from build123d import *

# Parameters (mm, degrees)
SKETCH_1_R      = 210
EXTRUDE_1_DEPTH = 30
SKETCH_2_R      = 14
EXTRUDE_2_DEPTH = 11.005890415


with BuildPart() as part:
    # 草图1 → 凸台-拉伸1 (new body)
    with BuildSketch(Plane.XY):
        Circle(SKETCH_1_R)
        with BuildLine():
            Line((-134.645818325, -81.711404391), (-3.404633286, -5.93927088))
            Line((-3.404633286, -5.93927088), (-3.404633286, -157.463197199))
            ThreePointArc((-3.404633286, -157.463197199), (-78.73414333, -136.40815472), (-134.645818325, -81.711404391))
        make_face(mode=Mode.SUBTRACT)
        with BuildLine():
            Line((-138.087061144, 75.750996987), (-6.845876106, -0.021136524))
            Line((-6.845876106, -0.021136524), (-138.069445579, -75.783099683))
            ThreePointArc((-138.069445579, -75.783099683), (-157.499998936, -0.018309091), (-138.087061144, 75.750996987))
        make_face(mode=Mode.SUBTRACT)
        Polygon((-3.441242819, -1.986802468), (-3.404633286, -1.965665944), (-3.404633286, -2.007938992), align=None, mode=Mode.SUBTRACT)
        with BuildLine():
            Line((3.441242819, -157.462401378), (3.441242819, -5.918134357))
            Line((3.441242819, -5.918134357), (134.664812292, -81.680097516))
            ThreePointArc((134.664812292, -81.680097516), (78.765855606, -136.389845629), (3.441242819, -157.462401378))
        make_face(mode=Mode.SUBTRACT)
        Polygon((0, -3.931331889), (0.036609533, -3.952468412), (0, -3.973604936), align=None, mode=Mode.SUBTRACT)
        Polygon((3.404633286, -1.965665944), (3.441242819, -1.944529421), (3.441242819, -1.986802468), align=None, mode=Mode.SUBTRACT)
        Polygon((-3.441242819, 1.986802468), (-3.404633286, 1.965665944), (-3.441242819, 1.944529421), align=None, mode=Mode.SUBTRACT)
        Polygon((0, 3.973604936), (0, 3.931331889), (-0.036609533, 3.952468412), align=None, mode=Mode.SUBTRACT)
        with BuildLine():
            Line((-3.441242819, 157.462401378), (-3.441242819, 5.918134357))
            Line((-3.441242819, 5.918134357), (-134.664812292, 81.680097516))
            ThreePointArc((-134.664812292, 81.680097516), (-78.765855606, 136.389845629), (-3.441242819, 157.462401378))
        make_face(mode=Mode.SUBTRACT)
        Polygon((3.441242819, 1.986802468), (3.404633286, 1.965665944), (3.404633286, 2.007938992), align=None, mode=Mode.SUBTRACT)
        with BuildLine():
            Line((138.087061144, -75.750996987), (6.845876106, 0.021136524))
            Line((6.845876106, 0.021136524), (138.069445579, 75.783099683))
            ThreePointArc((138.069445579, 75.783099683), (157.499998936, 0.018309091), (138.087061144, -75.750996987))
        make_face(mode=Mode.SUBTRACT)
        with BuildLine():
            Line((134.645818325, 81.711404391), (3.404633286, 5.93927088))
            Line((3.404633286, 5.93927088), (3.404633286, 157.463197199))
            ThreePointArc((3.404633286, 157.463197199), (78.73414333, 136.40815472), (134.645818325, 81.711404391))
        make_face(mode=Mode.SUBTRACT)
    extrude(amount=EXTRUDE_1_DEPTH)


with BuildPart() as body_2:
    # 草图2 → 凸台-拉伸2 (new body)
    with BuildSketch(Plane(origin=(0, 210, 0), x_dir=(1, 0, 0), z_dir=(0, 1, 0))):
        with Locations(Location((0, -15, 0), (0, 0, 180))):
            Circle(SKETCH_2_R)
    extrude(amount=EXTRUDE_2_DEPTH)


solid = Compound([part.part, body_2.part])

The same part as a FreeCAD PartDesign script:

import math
import FreeCAD as App
import Part
import Sketcher
from FreeCAD import Vector
Q = App.Units.Quantity

doc = App.newDocument("Part")
params = doc.addObject("Spreadsheet::Sheet", "Params")
for row, (alias, value) in enumerate([
    ("sketch1_diameter", "420 mm"),
    ("sketch1_radius", "157.5 mm"),
    ("pad1_length", "30 mm"),
    ("sketch2_diameter", "28 mm"),
    ("pad2_length", "11.00589 mm"),
], start=1):
    params.set(f"A{row}", alias)
    params.set(f"B{row}", "=" + value)
    params.setAlias(f"B{row}", alias)

body = doc.addObject("PartDesign::Body", "Body")

sketch1 = body.newObject("Sketcher::SketchObject", "Sketch")
sketch1.AttachmentSupport = (doc.getObject("XY_Plane"), [""])
sketch1.MapMode = "FlatFace"
sketch1.addGeometry([
    Part.Circle(Vector(0, 0, 0), Vector(0, 0, 1), 210),
    Part.ArcOfCircle(Part.Circle(Vector(0, 0, 0), Vector(0, 0, 1), 157.5), math.radians(-148.748036), math.radians(-91.238643)),
    Part.LineSegment(Vector(-134.645818, -81.711404, 0), Vector(-3.404633, -5.939271, 0)),
    Part.LineSegment(Vector(-3.404633, -5.939271, 0), Vector(-3.404633, -157.463197, 0)),
    Part.ArcOfCircle(Part.Circle(Vector(0, 0, 0), Vector(0, 0, 1), 157.5), math.radians(151.251964), math.radians(208.761357)),
    Part.LineSegment(Vector(-138.087061, 75.750997, 0), Vector(-6.845876, -0.021137, 0)),
    Part.LineSegment(Vector(-6.845876, -0.021137, 0), Vector(-138.069446, -75.7831, 0)),
    Part.LineSegment(Vector(-3.404633, -2.007939, 0), Vector(-3.441243, -1.986802, 0)),
    Part.LineSegment(Vector(-3.441243, -1.986802, 0), Vector(-3.404633, -1.965666, 0)),
    Part.LineSegment(Vector(-3.404633, -1.965666, 0), Vector(-3.404633, -2.007939, 0)),
    Part.ArcOfCircle(Part.Circle(Vector(0, 0, 0), Vector(0, 0, 1), 157.5), math.radians(-88.748036), math.radians(-31.238643)),
    Part.LineSegment(Vector(3.441243, -157.462401, 0), Vector(3.441243, -5.918134, 0)),
    Part.LineSegment(Vector(3.441243, -5.918134, 0), Vector(134.664812, -81.680098, 0)),
    Part.LineSegment(Vector(0, -3.973605, 0), Vector(0, -3.931332, 0)),
    Part.LineSegment(Vector(0, -3.931332, 0), Vector(0.03661, -3.952468, 0)),
    Part.LineSegment(Vector(0.03661, -3.952468, 0), Vector(0, -3.973605, 0)),
    Part.LineSegment(Vector(3.441243, -1.986802, 0), Vector(3.404633, -1.965666, 0)),
    Part.LineSegment(Vector(3.404633, -1.965666, 0), Vector(3.441243, -1.944529, 0)),
    Part.LineSegment(Vector(3.441243, -1.944529, 0), Vector(3.441243, -1.986802, 0)),
    Part.LineSegment(Vector(-3.441243, 1.944529, 0), Vector(-3.441243, 1.986802, 0)),
    Part.LineSegment(Vector(-3.441243, 1.986802, 0), Vector(-3.404633, 1.965666, 0)),
    Part.LineSegment(Vector(-3.404633, 1.965666, 0), Vector(-3.441243, 1.944529, 0)),
    Part.LineSegment(Vector(-0.03661, 3.952468, 0), Vector(0, 3.973605, 0)),
    Part.LineSegment(Vector(0, 3.973605, 0), Vector(0, 3.931332, 0)),
    Part.LineSegment(Vector(0, 3.931332, 0), Vector(-0.03661, 3.952468, 0)),
    Part.ArcOfCircle(Part.Circle(Vector(0, 0, 0), Vector(0, 0, 1), 157.5), math.radians(91.251964), math.radians(148.761357)),
    Part.LineSegment(Vector(-3.441243, 157.462401, 0), Vector(-3.441243, 5.918134, 0)),
    Part.LineSegment(Vector(-3.441243, 5.918134, 0), Vector(-134.664812, 81.680098, 0)),
    Part.LineSegment(Vector(3.404633, 2.007939, 0), Vector(3.441243, 1.986802, 0)),
    Part.LineSegment(Vector(3.441243, 1.986802, 0), Vector(3.404633, 1.965666, 0)),
    Part.LineSegment(Vector(3.404633, 1.965666, 0), Vector(3.404633, 2.007939, 0)),
    Part.ArcOfCircle(Part.Circle(Vector(0, 0, 0), Vector(0, 0, 1), 157.5), math.radians(-28.748036), math.radians(28.761357)),
    Part.LineSegment(Vector(138.087061, -75.750997, 0), Vector(6.845876, 0.021137, 0)),
    Part.LineSegment(Vector(6.845876, 0.021137, 0), Vector(138.069446, 75.7831, 0)),
    Part.ArcOfCircle(Part.Circle(Vector(0, 0, 0), Vector(0, 0, 1), 157.5), math.radians(31.251964), math.radians(88.761357)),
    Part.LineSegment(Vector(134.645818, 81.711404, 0), Vector(3.404633, 5.939271, 0)),
    Part.LineSegment(Vector(3.404633, 5.939271, 0), Vector(3.404633, 157.463197, 0)),
], False)
sketch1.addConstraint([
    Sketcher.Constraint("Coincident", 1, 1, 2, 1),
    Sketcher.Constraint("Coincident", 2, 2, 3, 1),
    Sketcher.Constraint("Coincident", 3, 2, 1, 2),
    Sketcher.Constraint("Coincident", 4, 1, 5, 1),
    Sketcher.Constraint("Coincident", 5, 2, 6, 1),
    Sketcher.Constraint("Coincident", 6, 2, 4, 2),
    Sketcher.Constraint("Coincident", 7, 2, 8, 1),
    Sketcher.Constraint("Coincident", 8, 2, 9, 1),
    Sketcher.Constraint("Coincident", 9, 2, 7, 1),
    Sketcher.Constraint("Coincident", 10, 1, 11, 1),
    Sketcher.Constraint("Coincident", 11, 2, 12, 1),
    Sketcher.Constraint("Coincident", 12, 2, 10, 2),
    Sketcher.Constraint("Coincident", 13, 2, 14, 1),
    Sketcher.Constraint("Coincident", 14, 2, 15, 1),
    Sketcher.Constraint("Coincident", 15, 2, 13, 1),
    Sketcher.Constraint("Coincident", 16, 2, 17, 1),
    Sketcher.Constraint("Coincident", 17, 2, 18, 1),
    Sketcher.Constraint("Coincident", 18, 2, 16, 1),
    Sketcher.Constraint("Coincident", 19, 2, 20, 1),
    Sketcher.Constraint("Coincident", 20, 2, 21, 1),
    Sketcher.Constraint("Coincident", 21, 2, 19, 1),
    Sketcher.Constraint("Coincident", 22, 2, 23, 1),
    Sketcher.Constraint("Coincident", 23, 2, 24, 1),
    Sketcher.Constraint("Coincident", 24, 2, 22, 1),
    Sketcher.Constraint("Coincident", 25, 1, 26, 1),
    Sketcher.Constraint("Coincident", 26, 2, 27, 1),
    Sketcher.Constraint("Coincident", 27, 2, 25, 2),
    Sketcher.Constraint("Coincident", 28, 2, 29, 1),
    Sketcher.Constraint("Coincident", 29, 2, 30, 1),
    Sketcher.Constraint("Coincident", 30, 2, 28, 1),
    Sketcher.Constraint("Coincident", 31, 1, 32, 1),
    Sketcher.Constraint("Coincident", 32, 2, 33, 1),
    Sketcher.Constraint("Coincident", 33, 2, 31, 2),
    Sketcher.Constraint("Coincident", 34, 1, 35, 1),
    Sketcher.Constraint("Coincident", 35, 2, 36, 1),
    Sketcher.Constraint("Coincident", 36, 2, 34, 2),
    Sketcher.Constraint("Vertical", 3),
    Sketcher.Constraint("Vertical", 9),
    Sketcher.Constraint("Vertical", 11),
    Sketcher.Constraint("Vertical", 13),
    Sketcher.Constraint("Vertical", 18),
    Sketcher.Constraint("Vertical", 19),
    Sketcher.Constraint("Vertical", 23),
    Sketcher.Constraint("Vertical", 26),
    Sketcher.Constraint("Vertical", 30),
    Sketcher.Constraint("Vertical", 36),
    Sketcher.Constraint("Coincident", 0, 3, -1, 1),
    Sketcher.Constraint("Coincident", 1, 3, -1, 1),
    Sketcher.Constraint("Coincident", 4, 3, -1, 1),
    Sketcher.Constraint("Coincident", 10, 3, -1, 1),
    Sketcher.Constraint("Coincident", 25, 3, -1, 1),
    Sketcher.Constraint("Coincident", 31, 3, -1, 1),
    Sketcher.Constraint("Coincident", 34, 3, -1, 1),
    Sketcher.Constraint("Equal", 1, 4),
    Sketcher.Constraint("Equal", 4, 10),
    Sketcher.Constraint("Equal", 10, 25),
    Sketcher.Constraint("Equal", 25, 31),
    Sketcher.Constraint("Equal", 31, 34),
    Sketcher.Constraint("Symmetric", 18, 2, 19, 2, -1, 1),
    Sketcher.Constraint("Symmetric", 16, 2, 20, 2, -1, 1),
    Sketcher.Constraint("Symmetric", 15, 2, 22, 2, -1, 1),
    Sketcher.Constraint("Symmetric", 14, 2, 24, 2, -1, 1),
    Sketcher.Constraint("Symmetric", 11, 2, 26, 2, -1, 1),
    Sketcher.Constraint("Symmetric", 7, 2, 28, 2, -1, 1),
    Sketcher.Constraint("Symmetric", 8, 2, 29, 2, -1, 1),
    Sketcher.Constraint("Symmetric", 5, 2, 32, 2, -1, 1),
    Sketcher.Constraint("Symmetric", 2, 2, 35, 2, -1, 1),
    Sketcher.Constraint("Symmetric", 8, 2, 16, 2, -2),
    Sketcher.Constraint("Symmetric", 7, 2, 18, 2, -2),
    Sketcher.Constraint("Symmetric", 13, 2, 23, 2, -1),
    Sketcher.Constraint("Parallel", 2, 6),
    Sketcher.Constraint("Parallel", 5, 7),
    Sketcher.Constraint("Parallel", 6, 8),
    Sketcher.Constraint("Parallel", 5, 12),
    Sketcher.Constraint("Parallel", 12, 14),
    Sketcher.Constraint("Parallel", 8, 15),
    Sketcher.Constraint("Parallel", 15, 17),
    Sketcher.Constraint("Parallel", 17, 21),
    Sketcher.Constraint("Parallel", 12, 27),
    Sketcher.Constraint("Parallel", 27, 28),
    Sketcher.Constraint("Parallel", 27, 32),
    Sketcher.Constraint("Parallel", 6, 33),
    Sketcher.Constraint("Parallel", 33, 35),
    Sketcher.Constraint("Vertical", 3, 2, 8, 2),
    Sketcher.Constraint("Vertical", 11, 2, 17, 2),
    Sketcher.Constraint("Equal", 9, 13),
    Sketcher.Constraint("Equal", 2, 5),
    Sketcher.Constraint("Equal", 6, 12),
    Sketcher.Constraint("Diameter", 0, Q("420 mm")),
    Sketcher.Constraint("Radius", 1, Q("157.5 mm")),
    Sketcher.Constraint("Angle", 2, Q("30 deg")),
    Sketcher.Constraint("Angle", 5, Q("-30 deg")),
    Sketcher.Constraint("DistanceY", 6, 2, -1, 1, Q("75.7831 mm")),
    Sketcher.Constraint("DistanceY", 10, 1, 7, 2, Q("155.475599 mm")),
    Sketcher.Constraint("DistanceY", 4, 1, 27, 2, Q("5.929101 mm")),
    Sketcher.Constraint("DistanceY", 3, 2, 3, 1, Q("151.523926 mm")),
    Sketcher.Constraint("DistanceY", 9, 2, 9, 1, Q("0.042273 mm")),
    Sketcher.Constraint("DistanceY", 13, 2, -1, 1, Q("3.931332 mm")),
])
sketch1.setExpression("Constraints[88]", "Params.sketch1_diameter")
sketch1.setExpression("Constraints[89]", "Params.sketch1_radius")
pad1 = body.newObject("PartDesign::Pad", "Pad")
pad1.Profile = sketch1
pad1.setExpression("Length", "Params.pad1_length")
body2 = doc.addObject("PartDesign::Body", "Body001")

sketch2 = body2.newObject("Sketcher::SketchObject", "Sketch001")
sketch2.AttachmentSupport = (doc.getObject("XZ_Plane001"), [""])
sketch2.MapMode = "FlatFace"
sketch2.AttachmentOffset = App.Placement(Vector(0, 0, -210), App.Rotation())
sketch2.addGeometry(Part.Circle(Vector(0, 15, 0), Vector(0, 0, 1), 14), False)
sketch2.addConstraint([
    Sketcher.Constraint("PointOnObject", 0, 3, -2),
    Sketcher.Constraint("Diameter", 0, Q("28 mm")),
    Sketcher.Constraint("DistanceY", -1, 1, 0, 3, Q("15 mm")),
])
sketch2.setExpression("Constraints[1]", "Params.sketch2_diameter")
pad2 = body2.newObject("PartDesign::Pad", "Pad001")
pad2.Profile = sketch2
pad2.setExpression("Length", "Params.pad2_length")
pad2.Reversed = True

doc.recompute()
